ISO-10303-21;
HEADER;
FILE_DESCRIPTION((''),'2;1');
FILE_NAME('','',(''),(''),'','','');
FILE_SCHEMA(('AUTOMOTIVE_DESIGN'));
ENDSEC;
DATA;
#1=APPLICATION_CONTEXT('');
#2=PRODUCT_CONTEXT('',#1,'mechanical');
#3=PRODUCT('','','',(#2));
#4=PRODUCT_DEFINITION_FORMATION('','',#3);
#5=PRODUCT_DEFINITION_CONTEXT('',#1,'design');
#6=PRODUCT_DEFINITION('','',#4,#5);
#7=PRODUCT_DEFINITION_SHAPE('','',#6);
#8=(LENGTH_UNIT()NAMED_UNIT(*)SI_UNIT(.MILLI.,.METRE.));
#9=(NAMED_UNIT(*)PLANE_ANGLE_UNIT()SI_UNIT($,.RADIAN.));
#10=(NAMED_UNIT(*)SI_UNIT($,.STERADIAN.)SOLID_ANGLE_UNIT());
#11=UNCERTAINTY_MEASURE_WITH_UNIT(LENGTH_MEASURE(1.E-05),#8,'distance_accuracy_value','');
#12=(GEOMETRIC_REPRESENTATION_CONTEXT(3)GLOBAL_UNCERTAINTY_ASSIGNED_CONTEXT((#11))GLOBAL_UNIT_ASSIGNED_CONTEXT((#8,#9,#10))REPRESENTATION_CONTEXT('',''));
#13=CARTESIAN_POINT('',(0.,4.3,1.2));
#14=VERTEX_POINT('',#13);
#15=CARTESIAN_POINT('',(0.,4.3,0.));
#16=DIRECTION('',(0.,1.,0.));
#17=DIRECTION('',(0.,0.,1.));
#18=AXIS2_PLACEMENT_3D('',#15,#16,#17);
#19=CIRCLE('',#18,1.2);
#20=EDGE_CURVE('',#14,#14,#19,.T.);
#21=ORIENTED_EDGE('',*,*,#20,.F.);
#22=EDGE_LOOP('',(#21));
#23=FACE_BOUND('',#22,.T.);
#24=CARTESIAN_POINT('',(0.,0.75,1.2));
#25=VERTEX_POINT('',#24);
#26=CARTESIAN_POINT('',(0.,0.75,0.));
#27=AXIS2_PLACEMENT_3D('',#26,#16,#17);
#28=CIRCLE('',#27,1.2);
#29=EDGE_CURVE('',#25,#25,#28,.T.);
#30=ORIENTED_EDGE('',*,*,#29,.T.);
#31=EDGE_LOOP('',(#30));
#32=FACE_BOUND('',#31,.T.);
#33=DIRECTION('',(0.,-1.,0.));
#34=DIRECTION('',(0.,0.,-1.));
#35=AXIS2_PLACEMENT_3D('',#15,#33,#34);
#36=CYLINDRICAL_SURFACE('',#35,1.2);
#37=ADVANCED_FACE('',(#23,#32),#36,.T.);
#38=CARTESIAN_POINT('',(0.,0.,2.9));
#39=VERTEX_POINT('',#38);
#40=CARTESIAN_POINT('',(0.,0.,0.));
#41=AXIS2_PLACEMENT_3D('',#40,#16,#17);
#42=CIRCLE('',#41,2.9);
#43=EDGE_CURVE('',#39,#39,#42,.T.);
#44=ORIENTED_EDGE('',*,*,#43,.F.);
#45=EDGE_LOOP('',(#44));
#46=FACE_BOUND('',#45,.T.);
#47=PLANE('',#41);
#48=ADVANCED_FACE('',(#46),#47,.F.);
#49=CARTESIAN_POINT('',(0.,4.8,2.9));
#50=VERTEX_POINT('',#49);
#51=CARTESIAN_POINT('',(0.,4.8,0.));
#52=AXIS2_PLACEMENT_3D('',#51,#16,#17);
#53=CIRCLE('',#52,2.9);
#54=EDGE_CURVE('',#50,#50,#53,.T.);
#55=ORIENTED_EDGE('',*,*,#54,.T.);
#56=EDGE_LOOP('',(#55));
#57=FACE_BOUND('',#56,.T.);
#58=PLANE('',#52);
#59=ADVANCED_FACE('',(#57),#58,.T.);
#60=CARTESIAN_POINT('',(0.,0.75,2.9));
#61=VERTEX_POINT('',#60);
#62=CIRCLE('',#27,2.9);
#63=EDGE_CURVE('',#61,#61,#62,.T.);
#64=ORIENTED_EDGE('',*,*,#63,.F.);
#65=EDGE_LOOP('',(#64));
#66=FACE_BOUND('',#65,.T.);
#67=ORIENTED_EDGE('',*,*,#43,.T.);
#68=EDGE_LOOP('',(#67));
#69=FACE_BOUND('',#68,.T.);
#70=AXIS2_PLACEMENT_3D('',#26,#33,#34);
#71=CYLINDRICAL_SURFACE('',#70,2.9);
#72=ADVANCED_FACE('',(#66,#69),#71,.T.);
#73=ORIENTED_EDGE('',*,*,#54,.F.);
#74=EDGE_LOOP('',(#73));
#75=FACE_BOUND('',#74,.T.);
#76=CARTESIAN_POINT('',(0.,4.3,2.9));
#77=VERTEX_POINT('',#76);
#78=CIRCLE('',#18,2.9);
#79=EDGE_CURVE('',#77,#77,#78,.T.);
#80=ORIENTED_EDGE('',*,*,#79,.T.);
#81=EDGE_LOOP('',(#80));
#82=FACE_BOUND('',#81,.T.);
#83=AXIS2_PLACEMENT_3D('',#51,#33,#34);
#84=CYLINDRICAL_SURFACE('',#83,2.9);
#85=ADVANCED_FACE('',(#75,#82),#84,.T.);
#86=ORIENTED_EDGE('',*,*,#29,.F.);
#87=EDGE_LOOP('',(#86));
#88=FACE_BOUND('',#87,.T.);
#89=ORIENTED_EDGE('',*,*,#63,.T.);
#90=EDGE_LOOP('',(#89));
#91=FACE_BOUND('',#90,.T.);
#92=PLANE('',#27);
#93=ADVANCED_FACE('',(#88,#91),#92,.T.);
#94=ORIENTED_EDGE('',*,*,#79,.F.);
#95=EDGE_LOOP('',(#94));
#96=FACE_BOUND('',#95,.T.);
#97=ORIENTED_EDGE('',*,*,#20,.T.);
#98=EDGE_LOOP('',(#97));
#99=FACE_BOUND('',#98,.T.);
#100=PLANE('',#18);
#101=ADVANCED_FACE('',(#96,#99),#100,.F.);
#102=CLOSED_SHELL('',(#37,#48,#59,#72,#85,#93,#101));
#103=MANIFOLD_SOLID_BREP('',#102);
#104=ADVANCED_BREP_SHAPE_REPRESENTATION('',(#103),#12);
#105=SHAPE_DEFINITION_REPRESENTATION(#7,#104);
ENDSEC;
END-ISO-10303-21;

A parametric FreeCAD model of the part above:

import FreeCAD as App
import Part
import Sketcher

V = App.Vector

doc = App.newDocument("Part")
body = doc.addObject("PartDesign::Body", "Body")

# Sketch on XZ plane
sketch1 = doc.addObject("Sketcher::SketchObject", "Sketch")
body.addObject(sketch1)
sketch1.AttachmentSupport = (doc.XZ_Plane, [""])
sketch1.MapMode = "FlatFace"
sketch1.addGeometry(Part.Circle(V(0, 0, 0), V(0, 0, 1), 2.9), False)
sketch1.addConstraint(Sketcher.Constraint("Coincident", 0, 3, -1, 1))
sketch1.addConstraint(Sketcher.Constraint("Diameter", 0, 5.8))
pad1 = doc.addObject("PartDesign::Pad", "Pad")
body.addObject(pad1)
pad1.Profile = sketch1
pad1.Length = 0.75
pad1.Reversed = True

# Sketch on XZ plane
sketch2 = doc.addObject("Sketcher::SketchObject", "Sketch001")
body.addObject(sketch2)
sketch2.AttachmentSupport = (doc.XZ_Plane, [""])
sketch2.MapMode = "FlatFace"
sketch2.AttachmentOffset = App.Placement(V(0, 0, -0.75), App.Rotation())
sketch2.addGeometry(Part.Circle(V(0, 0, 0), V(0, 0, 1), 1.2), False)
sketch2.addConstraint(Sketcher.Constraint("Coincident", 0, 3, -1, 1))
sketch2.addConstraint(Sketcher.Constraint("Diameter", 0, 2.4))
pad2 = doc.addObject("PartDesign::Pad", "Pad001")
body.addObject(pad2)
pad2.Profile = sketch2
pad2.Length = 3.55
pad2.Reversed = True

# Sketch on XZ plane
sketch3 = doc.addObject("Sketcher::SketchObject", "Sketch002")
body.addObject(sketch3)
sketch3.AttachmentSupport = (doc.XZ_Plane, [""])
sketch3.MapMode = "FlatFace"
sketch3.AttachmentOffset = App.Placement(V(0, 0, -4.3), App.Rotation())
sketch3.addGeometry(Part.Circle(V(0, 0, 0), V(0, 0, 1), 2.9), False)
sketch3.addConstraint(Sketcher.Constraint("Coincident", 0, 3, -1, 1))
sketch3.addConstraint(Sketcher.Constraint("Diameter", 0, 5.8))
pad3 = doc.addObject("PartDesign::Pad", "Pad002")
body.addObject(pad3)
pad3.Profile = sketch3
pad3.Length = 0.5
pad3.Reversed = True

doc.recompute()
